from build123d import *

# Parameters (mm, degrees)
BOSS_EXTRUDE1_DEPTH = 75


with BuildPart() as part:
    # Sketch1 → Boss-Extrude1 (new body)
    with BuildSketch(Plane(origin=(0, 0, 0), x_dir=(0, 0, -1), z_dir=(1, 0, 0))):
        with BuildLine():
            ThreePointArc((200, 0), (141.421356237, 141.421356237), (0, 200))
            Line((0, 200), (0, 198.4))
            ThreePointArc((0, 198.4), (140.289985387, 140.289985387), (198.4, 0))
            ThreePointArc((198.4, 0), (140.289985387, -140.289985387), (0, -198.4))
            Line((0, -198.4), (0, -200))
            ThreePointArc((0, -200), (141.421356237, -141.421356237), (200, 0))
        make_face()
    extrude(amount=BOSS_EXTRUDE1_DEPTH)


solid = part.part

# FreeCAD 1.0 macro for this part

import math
import FreeCAD as App
import Part
import Sketcher
from FreeCAD import Vector
Q = App.Units.Quantity

doc = App.newDocument("Part")
body = doc.addObject("PartDesign::Body", "Body")

sketch1 = body.newObject("Sketcher::SketchObject", "Sketch")
sketch1.AttachmentSupport = (doc.getObject("YZ_Plane"), [""])
sketch1.MapMode = "FlatFace"
sketch1.addGeometry([
    Part.ArcOfCircle(Part.Circle(Vector(0, 0, 0), Vector(0, 0, 1), 200), math.radians(-90), math.radians(0)),
    Part.LineSegment(Vector(200, 0, 0), Vector(198.4, 0, 0)),
    Part.ArcOfCircle(Part.Circle(Vector(0, 0, 0), Vector(0, 0, 1), 198.4), math.radians(-90), math.radians(0)),
    Part.ArcOfCircle(Part.Circle(Vector(0, 0, 0), Vector(0, 0, 1), 198.4), math.radians(-180), math.radians(-90)),
    Part.LineSegment(Vector(-198.4, 0, 0), Vector(-200, 0, 0)),
    Part.ArcOfCircle(Part.Circle(Vector(0, 0, 0), Vector(0, 0, 1), 200), math.radians(-180), math.radians(-90)),
], False)
sketch1.addConstraint([
    Sketcher.Constraint("Coincident", 0, 2, 1, 1),
    Sketcher.Constraint("Coincident", 1, 2, 2, 2),
    Sketcher.Constraint("Tangent", 2, 1, 3, 2),
    Sketcher.Constraint("Coincident", 3, 1, 4, 1),
    Sketcher.Constraint("Coincident", 4, 2, 5, 1),
    Sketcher.Constraint("Tangent", 5, 2, 0, 1),
    Sketcher.Constraint("Horizontal", 1),
    Sketcher.Constraint("Horizontal", 4),
    Sketcher.Constraint("Coincident", 0, 3, -1, 1),
    Sketcher.Constraint("Coincident", 2, 3, -1, 1),
    Sketcher.Constraint("Equal", 2, 3),
    Sketcher.Constraint("Equal", 0, 5),
    Sketcher.Constraint("PointOnObject", 0, 2, -1),
    Sketcher.Constraint("PointOnObject", 2, 1, -2),
    Sketcher.Constraint("PointOnObject", 3, 1, -1),
    Sketcher.Constraint("PointOnObject", 5, 2, -2),
    Sketcher.Constraint("Radius", 0, Q("200 mm")),
    Sketcher.Constraint("Radius", 2, Q("198.4 mm")),
])
pad1 = body.newObject("PartDesign::Pad", "Pad")
pad1.Profile = sketch1
pad1.Length = 75

doc.recompute()
